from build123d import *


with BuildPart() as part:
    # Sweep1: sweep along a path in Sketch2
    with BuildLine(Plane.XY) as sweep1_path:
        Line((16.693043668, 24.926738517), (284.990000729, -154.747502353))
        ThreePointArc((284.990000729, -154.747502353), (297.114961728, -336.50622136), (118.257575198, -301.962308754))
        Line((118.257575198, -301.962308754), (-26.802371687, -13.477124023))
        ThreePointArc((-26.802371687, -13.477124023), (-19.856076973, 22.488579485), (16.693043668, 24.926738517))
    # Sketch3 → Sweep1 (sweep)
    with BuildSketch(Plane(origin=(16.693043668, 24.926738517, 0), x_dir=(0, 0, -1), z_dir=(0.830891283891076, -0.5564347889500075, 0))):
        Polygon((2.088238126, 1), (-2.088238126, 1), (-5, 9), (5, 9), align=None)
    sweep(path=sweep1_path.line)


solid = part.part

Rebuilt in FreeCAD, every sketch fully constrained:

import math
import FreeCAD as App
import Part
import Sketcher
Q = App.Units.Quantity

doc = App.newDocument("Part")
body = doc.addObject("PartDesign::Body", "Body")

sketch1 = body.newObject("Sketcher::SketchObject", "Sketch")
sketch1.Placement = App.Placement(App.Vector(16.693044, 24.926739, 0), App.Rotation(App.Vector(0, 0, -1), App.Vector(0.556434789, 0.830891284, 0), App.Vector(0.830891284, -0.556434789, 0), "ZXY"))
sketch1.addGeometry([
    Part.LineSegment(App.Vector(-2.1, 1, 0), App.Vector(2.1, 1, 0)),
    Part.LineSegment(App.Vector(2.1, 1, 0), App.Vector(5, 9, 0)),
    Part.LineSegment(App.Vector(5, 9, 0), App.Vector(-5, 9, 0)),
    Part.LineSegment(App.Vector(-5, 9, 0), App.Vector(-2.1, 1, 0)),
], False)
sketch1.addConstraint([
    Sketcher.Constraint("Coincident", 0, 2, 1, 1),
    Sketcher.Constraint("Coincident", 1, 2, 2, 1),
    Sketcher.Constraint("Coincident", 2, 2, 3, 1),
    Sketcher.Constraint("Coincident", 3, 2, 0, 1),
    Sketcher.Constraint("Horizontal", 0),
    Sketcher.Constraint("Horizontal", 2),
    Sketcher.Constraint("Equal", 1, 3),
    Sketcher.Constraint("DistanceX", 2, 2, 2, 1, 10.0),
    Sketcher.Constraint("Angle", 1, Q("70 deg")),
    Sketcher.Constraint("DistanceY", -1, 1, 0, 2, 1.0),
    Sketcher.Constraint("DistanceX", -1, 1, 1, 2, 5.0),
    Sketcher.Constraint("DistanceY", -1, 1, 1, 2, 9.0),
])

sketch2 = body.newObject("Sketcher::SketchObject", "Sketch001")
sketch2.AttachmentSupport = (doc.getObject("XY_Plane"), [""])
sketch2.MapMode = "FlatFace"
sketch2.addGeometry([
    Part.LineSegment(App.Vector(17, 25, 0), App.Vector(285, -155, 0)),
    Part.ArcOfCircle(Part.Circle(App.Vector(221, -250, 0), App.Vector(0, 0, 1), 115), math.radians(-153), math.radians(56)),
    Part.LineSegment(App.Vector(118, -302, 0), App.Vector(-27, -13, 0)),
    Part.ArcOfCircle(Part.Circle(App.Vector(0, 0, 0), App.Vector(0, 0, 1), 30), math.radians(56), math.radians(207)),
], False)
sketch2.addConstraint([
    Sketcher.Constraint("Tangent", 0, 2, 1, 2),
    Sketcher.Constraint("Tangent", 1, 1, 2, 1),
    Sketcher.Constraint("Tangent", 2, 2, 3, 2),
    Sketcher.Constraint("Tangent", 3, 1, 0, 1),
    Sketcher.Constraint("Coincident", 3, 3, -1, 1),
    Sketcher.Constraint("Radius", 1, 115.0),
    Sketcher.Constraint("Radius", 3, 30.0),
    Sketcher.Constraint("DistanceX", -1, 1, 1, 3, 221.0),
    Sketcher.Constraint("DistanceY", 1, 3, -1, 1, 250.3),
])
doc.recompute()

additivepipe = body.newObject("PartDesign::AdditivePipe", "AdditivePipe")
additivepipe.Profile = sketch1
additivepipe.Spine = (sketch2, ["Edge1", "Edge2", "Edge3", "Edge4"])

doc.recompute()
